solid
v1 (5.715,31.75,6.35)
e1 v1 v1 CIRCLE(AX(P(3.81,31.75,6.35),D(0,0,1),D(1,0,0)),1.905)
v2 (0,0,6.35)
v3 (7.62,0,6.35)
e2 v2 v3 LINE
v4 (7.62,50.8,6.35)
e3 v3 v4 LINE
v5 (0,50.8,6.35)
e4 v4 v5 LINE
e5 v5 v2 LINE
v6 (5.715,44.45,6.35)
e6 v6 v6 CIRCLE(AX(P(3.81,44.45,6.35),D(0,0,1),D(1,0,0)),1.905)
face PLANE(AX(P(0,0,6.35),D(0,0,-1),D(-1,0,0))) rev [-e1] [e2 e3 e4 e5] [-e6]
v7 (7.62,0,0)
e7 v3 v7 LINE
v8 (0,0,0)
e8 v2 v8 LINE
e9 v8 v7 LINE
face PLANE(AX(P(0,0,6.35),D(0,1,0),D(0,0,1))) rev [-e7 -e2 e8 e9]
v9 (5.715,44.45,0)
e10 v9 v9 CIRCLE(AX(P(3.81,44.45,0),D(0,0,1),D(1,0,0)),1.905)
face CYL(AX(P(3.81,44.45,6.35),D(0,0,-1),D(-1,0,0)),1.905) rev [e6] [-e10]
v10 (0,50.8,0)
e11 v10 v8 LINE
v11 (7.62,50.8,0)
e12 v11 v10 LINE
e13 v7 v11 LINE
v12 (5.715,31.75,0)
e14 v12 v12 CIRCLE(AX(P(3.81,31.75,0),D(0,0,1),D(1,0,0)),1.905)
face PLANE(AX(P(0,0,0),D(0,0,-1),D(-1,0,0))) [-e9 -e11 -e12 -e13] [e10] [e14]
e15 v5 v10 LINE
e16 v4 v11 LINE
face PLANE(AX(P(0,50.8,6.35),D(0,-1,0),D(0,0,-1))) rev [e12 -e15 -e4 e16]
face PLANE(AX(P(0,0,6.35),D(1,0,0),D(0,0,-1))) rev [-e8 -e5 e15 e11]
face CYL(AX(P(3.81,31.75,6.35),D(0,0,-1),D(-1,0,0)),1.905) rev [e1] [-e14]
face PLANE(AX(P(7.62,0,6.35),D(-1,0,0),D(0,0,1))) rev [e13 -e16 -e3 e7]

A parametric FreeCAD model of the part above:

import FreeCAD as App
import Part
import Sketcher

V = App.Vector
Q = App.Units.Quantity


def add_polygon(sketch, points):
    """Adds a closed chain of lines whose ends are joined by coincident constraints."""
    first, n = sketch.GeometryCount, len(points)
    for a, b in zip(points, points[1:] + points[:1]):
        sketch.addGeometry(Part.LineSegment(App.Vector(*a, 0), App.Vector(*b, 0)), False)
    for i in range(n):
        sketch.addConstraint(Sketcher.Constraint("Coincident", first + i, 2, first + (i + 1) % n, 1))

doc = App.newDocument("Part")
params = doc.addObject("Spreadsheet::Sheet", "Params")
for row, (alias, value) in enumerate([
    ("sketch1_diameter", "0.15 in"),
    ("sketch1_height", "2 in"),
    ("sketch1_width", "0.3 in"),
    ("pad1_length", "0.25 in"),
], start=1):
    params.set(f"A{row}", alias)
    params.set(f"B{row}", "=" + value)
    params.setAlias(f"B{row}", alias)

body = doc.addObject("PartDesign::Body", "Body")

sketch1 = body.newObject("Sketcher::SketchObject", "Sketch")
sketch1.AttachmentSupport = (doc.getObject("XY_Plane"), [""])
sketch1.MapMode = "FlatFace"
add_polygon(sketch1, [(0, 50.8), (0, 0), (7.6, 0), (7.6, 50.8)])
sketch1.addGeometry(Part.Circle(V(3.8, 31.8, 0), V(0, 0, 1), 1.9), False)
sketch1.addGeometry(Part.Circle(V(3.8, 44.5, 0), V(0, 0, 1), 1.9), False)
sketch1.addConstraint(Sketcher.Constraint("Vertical", 0))
sketch1.addConstraint(Sketcher.Constraint("Horizontal", 1))
sketch1.addConstraint(Sketcher.Constraint("Vertical", 2))
sketch1.addConstraint(Sketcher.Constraint("Horizontal", 3))
sketch1.addConstraint(Sketcher.Constraint("Coincident", 0, 2, -1, 1))
sketch1.addConstraint(Sketcher.Constraint("Equal", 4, 5))
sketch1.addConstraint(Sketcher.Constraint("Vertical", 4, 3, 5, 3))
sketch1.addConstraint(Sketcher.Constraint("Diameter", 4, Q("0.15 in")))
sketch1.addConstraint(Sketcher.Constraint("DistanceY", 0, 2, 0, 1, Q("2 in")))
sketch1.addConstraint(Sketcher.Constraint("DistanceX", 1, 1, 1, 2, Q("0.3 in")))
sketch1.addConstraint(Sketcher.Constraint("DistanceY", 4, 3, 5, 3, Q("0.5 in")))
sketch1.addConstraint(Sketcher.Constraint("DistanceX", -1, 1, 4, 3, Q("0.15 in")))
sketch1.addConstraint(Sketcher.Constraint("DistanceY", -1, 1, 4, 3, Q("1.25 in")))
sketch1.setExpression("Constraints[11]", "Params.sketch1_diameter")
sketch1.setExpression("Constraints[12]", "Params.sketch1_height")
sketch1.setExpression("Constraints[13]", "Params.sketch1_width")
pad1 = body.newObject("PartDesign::Pad", "Pad")
pad1.Profile = sketch1
pad1.setExpression("Length", "Params.pad1_length")

doc.recompute()
